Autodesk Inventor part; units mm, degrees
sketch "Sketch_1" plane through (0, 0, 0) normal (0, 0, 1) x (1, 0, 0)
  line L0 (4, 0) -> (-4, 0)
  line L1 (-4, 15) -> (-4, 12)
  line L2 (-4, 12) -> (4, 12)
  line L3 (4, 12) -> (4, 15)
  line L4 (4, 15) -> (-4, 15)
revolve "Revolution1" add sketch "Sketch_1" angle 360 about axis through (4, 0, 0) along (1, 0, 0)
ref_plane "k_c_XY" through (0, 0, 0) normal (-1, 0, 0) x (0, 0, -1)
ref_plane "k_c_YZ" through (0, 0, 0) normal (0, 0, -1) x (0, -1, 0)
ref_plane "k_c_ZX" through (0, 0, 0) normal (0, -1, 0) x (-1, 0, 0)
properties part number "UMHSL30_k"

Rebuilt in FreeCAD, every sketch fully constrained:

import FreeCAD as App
import Part
import Sketcher
Q = App.Units.Quantity


def add_polygon(sketch, points):
    """Adds a closed chain of lines whose ends are joined by coincident constraints."""
    first, n = sketch.GeometryCount, len(points)
    for a, b in zip(points, points[1:] + points[:1]):
        sketch.addGeometry(Part.LineSegment(App.Vector(*a, 0), App.Vector(*b, 0)), False)
    for i in range(n):
        sketch.addConstraint(Sketcher.Constraint("Coincident", first + i, 2, first + (i + 1) % n, 1))

doc = App.newDocument("Part")
body = doc.addObject("PartDesign::Body", "Body")

# Sketch on XY plane
sketch1 = body.newObject("Sketcher::SketchObject", "Sketch")
sketch1.AttachmentSupport = (doc.getObject("XY_Plane"), [""])
sketch1.MapMode = "FlatFace"
add_polygon(sketch1, [(4, 15), (-4, 15), (-4, 12), (4, 12)])  # lines 0-3
sketch1.addConstraint([
    Sketcher.Constraint("Horizontal", 0),
    Sketcher.Constraint("Vertical", 1),
    Sketcher.Constraint("Horizontal", 2),
    Sketcher.Constraint("Vertical", 3),
    Sketcher.Constraint("DistanceX", 0, 2, 0, 1, Q("8 mm")),
    Sketcher.Constraint("DistanceY", 1, 2, 1, 1, Q("3 mm")),
    Sketcher.Constraint("DistanceX", 0, 2, -1, 1, Q("4 mm")),
    Sketcher.Constraint("DistanceY", -1, 1, 0, 2, Q("15 mm")),
])
revolution = body.newObject("PartDesign::Revolution", "Revolution")
revolution.Profile = sketch1
revolution.ReferenceAxis = (sketch1, ["H_Axis"])
revolution.Angle = 360

doc.recompute()
